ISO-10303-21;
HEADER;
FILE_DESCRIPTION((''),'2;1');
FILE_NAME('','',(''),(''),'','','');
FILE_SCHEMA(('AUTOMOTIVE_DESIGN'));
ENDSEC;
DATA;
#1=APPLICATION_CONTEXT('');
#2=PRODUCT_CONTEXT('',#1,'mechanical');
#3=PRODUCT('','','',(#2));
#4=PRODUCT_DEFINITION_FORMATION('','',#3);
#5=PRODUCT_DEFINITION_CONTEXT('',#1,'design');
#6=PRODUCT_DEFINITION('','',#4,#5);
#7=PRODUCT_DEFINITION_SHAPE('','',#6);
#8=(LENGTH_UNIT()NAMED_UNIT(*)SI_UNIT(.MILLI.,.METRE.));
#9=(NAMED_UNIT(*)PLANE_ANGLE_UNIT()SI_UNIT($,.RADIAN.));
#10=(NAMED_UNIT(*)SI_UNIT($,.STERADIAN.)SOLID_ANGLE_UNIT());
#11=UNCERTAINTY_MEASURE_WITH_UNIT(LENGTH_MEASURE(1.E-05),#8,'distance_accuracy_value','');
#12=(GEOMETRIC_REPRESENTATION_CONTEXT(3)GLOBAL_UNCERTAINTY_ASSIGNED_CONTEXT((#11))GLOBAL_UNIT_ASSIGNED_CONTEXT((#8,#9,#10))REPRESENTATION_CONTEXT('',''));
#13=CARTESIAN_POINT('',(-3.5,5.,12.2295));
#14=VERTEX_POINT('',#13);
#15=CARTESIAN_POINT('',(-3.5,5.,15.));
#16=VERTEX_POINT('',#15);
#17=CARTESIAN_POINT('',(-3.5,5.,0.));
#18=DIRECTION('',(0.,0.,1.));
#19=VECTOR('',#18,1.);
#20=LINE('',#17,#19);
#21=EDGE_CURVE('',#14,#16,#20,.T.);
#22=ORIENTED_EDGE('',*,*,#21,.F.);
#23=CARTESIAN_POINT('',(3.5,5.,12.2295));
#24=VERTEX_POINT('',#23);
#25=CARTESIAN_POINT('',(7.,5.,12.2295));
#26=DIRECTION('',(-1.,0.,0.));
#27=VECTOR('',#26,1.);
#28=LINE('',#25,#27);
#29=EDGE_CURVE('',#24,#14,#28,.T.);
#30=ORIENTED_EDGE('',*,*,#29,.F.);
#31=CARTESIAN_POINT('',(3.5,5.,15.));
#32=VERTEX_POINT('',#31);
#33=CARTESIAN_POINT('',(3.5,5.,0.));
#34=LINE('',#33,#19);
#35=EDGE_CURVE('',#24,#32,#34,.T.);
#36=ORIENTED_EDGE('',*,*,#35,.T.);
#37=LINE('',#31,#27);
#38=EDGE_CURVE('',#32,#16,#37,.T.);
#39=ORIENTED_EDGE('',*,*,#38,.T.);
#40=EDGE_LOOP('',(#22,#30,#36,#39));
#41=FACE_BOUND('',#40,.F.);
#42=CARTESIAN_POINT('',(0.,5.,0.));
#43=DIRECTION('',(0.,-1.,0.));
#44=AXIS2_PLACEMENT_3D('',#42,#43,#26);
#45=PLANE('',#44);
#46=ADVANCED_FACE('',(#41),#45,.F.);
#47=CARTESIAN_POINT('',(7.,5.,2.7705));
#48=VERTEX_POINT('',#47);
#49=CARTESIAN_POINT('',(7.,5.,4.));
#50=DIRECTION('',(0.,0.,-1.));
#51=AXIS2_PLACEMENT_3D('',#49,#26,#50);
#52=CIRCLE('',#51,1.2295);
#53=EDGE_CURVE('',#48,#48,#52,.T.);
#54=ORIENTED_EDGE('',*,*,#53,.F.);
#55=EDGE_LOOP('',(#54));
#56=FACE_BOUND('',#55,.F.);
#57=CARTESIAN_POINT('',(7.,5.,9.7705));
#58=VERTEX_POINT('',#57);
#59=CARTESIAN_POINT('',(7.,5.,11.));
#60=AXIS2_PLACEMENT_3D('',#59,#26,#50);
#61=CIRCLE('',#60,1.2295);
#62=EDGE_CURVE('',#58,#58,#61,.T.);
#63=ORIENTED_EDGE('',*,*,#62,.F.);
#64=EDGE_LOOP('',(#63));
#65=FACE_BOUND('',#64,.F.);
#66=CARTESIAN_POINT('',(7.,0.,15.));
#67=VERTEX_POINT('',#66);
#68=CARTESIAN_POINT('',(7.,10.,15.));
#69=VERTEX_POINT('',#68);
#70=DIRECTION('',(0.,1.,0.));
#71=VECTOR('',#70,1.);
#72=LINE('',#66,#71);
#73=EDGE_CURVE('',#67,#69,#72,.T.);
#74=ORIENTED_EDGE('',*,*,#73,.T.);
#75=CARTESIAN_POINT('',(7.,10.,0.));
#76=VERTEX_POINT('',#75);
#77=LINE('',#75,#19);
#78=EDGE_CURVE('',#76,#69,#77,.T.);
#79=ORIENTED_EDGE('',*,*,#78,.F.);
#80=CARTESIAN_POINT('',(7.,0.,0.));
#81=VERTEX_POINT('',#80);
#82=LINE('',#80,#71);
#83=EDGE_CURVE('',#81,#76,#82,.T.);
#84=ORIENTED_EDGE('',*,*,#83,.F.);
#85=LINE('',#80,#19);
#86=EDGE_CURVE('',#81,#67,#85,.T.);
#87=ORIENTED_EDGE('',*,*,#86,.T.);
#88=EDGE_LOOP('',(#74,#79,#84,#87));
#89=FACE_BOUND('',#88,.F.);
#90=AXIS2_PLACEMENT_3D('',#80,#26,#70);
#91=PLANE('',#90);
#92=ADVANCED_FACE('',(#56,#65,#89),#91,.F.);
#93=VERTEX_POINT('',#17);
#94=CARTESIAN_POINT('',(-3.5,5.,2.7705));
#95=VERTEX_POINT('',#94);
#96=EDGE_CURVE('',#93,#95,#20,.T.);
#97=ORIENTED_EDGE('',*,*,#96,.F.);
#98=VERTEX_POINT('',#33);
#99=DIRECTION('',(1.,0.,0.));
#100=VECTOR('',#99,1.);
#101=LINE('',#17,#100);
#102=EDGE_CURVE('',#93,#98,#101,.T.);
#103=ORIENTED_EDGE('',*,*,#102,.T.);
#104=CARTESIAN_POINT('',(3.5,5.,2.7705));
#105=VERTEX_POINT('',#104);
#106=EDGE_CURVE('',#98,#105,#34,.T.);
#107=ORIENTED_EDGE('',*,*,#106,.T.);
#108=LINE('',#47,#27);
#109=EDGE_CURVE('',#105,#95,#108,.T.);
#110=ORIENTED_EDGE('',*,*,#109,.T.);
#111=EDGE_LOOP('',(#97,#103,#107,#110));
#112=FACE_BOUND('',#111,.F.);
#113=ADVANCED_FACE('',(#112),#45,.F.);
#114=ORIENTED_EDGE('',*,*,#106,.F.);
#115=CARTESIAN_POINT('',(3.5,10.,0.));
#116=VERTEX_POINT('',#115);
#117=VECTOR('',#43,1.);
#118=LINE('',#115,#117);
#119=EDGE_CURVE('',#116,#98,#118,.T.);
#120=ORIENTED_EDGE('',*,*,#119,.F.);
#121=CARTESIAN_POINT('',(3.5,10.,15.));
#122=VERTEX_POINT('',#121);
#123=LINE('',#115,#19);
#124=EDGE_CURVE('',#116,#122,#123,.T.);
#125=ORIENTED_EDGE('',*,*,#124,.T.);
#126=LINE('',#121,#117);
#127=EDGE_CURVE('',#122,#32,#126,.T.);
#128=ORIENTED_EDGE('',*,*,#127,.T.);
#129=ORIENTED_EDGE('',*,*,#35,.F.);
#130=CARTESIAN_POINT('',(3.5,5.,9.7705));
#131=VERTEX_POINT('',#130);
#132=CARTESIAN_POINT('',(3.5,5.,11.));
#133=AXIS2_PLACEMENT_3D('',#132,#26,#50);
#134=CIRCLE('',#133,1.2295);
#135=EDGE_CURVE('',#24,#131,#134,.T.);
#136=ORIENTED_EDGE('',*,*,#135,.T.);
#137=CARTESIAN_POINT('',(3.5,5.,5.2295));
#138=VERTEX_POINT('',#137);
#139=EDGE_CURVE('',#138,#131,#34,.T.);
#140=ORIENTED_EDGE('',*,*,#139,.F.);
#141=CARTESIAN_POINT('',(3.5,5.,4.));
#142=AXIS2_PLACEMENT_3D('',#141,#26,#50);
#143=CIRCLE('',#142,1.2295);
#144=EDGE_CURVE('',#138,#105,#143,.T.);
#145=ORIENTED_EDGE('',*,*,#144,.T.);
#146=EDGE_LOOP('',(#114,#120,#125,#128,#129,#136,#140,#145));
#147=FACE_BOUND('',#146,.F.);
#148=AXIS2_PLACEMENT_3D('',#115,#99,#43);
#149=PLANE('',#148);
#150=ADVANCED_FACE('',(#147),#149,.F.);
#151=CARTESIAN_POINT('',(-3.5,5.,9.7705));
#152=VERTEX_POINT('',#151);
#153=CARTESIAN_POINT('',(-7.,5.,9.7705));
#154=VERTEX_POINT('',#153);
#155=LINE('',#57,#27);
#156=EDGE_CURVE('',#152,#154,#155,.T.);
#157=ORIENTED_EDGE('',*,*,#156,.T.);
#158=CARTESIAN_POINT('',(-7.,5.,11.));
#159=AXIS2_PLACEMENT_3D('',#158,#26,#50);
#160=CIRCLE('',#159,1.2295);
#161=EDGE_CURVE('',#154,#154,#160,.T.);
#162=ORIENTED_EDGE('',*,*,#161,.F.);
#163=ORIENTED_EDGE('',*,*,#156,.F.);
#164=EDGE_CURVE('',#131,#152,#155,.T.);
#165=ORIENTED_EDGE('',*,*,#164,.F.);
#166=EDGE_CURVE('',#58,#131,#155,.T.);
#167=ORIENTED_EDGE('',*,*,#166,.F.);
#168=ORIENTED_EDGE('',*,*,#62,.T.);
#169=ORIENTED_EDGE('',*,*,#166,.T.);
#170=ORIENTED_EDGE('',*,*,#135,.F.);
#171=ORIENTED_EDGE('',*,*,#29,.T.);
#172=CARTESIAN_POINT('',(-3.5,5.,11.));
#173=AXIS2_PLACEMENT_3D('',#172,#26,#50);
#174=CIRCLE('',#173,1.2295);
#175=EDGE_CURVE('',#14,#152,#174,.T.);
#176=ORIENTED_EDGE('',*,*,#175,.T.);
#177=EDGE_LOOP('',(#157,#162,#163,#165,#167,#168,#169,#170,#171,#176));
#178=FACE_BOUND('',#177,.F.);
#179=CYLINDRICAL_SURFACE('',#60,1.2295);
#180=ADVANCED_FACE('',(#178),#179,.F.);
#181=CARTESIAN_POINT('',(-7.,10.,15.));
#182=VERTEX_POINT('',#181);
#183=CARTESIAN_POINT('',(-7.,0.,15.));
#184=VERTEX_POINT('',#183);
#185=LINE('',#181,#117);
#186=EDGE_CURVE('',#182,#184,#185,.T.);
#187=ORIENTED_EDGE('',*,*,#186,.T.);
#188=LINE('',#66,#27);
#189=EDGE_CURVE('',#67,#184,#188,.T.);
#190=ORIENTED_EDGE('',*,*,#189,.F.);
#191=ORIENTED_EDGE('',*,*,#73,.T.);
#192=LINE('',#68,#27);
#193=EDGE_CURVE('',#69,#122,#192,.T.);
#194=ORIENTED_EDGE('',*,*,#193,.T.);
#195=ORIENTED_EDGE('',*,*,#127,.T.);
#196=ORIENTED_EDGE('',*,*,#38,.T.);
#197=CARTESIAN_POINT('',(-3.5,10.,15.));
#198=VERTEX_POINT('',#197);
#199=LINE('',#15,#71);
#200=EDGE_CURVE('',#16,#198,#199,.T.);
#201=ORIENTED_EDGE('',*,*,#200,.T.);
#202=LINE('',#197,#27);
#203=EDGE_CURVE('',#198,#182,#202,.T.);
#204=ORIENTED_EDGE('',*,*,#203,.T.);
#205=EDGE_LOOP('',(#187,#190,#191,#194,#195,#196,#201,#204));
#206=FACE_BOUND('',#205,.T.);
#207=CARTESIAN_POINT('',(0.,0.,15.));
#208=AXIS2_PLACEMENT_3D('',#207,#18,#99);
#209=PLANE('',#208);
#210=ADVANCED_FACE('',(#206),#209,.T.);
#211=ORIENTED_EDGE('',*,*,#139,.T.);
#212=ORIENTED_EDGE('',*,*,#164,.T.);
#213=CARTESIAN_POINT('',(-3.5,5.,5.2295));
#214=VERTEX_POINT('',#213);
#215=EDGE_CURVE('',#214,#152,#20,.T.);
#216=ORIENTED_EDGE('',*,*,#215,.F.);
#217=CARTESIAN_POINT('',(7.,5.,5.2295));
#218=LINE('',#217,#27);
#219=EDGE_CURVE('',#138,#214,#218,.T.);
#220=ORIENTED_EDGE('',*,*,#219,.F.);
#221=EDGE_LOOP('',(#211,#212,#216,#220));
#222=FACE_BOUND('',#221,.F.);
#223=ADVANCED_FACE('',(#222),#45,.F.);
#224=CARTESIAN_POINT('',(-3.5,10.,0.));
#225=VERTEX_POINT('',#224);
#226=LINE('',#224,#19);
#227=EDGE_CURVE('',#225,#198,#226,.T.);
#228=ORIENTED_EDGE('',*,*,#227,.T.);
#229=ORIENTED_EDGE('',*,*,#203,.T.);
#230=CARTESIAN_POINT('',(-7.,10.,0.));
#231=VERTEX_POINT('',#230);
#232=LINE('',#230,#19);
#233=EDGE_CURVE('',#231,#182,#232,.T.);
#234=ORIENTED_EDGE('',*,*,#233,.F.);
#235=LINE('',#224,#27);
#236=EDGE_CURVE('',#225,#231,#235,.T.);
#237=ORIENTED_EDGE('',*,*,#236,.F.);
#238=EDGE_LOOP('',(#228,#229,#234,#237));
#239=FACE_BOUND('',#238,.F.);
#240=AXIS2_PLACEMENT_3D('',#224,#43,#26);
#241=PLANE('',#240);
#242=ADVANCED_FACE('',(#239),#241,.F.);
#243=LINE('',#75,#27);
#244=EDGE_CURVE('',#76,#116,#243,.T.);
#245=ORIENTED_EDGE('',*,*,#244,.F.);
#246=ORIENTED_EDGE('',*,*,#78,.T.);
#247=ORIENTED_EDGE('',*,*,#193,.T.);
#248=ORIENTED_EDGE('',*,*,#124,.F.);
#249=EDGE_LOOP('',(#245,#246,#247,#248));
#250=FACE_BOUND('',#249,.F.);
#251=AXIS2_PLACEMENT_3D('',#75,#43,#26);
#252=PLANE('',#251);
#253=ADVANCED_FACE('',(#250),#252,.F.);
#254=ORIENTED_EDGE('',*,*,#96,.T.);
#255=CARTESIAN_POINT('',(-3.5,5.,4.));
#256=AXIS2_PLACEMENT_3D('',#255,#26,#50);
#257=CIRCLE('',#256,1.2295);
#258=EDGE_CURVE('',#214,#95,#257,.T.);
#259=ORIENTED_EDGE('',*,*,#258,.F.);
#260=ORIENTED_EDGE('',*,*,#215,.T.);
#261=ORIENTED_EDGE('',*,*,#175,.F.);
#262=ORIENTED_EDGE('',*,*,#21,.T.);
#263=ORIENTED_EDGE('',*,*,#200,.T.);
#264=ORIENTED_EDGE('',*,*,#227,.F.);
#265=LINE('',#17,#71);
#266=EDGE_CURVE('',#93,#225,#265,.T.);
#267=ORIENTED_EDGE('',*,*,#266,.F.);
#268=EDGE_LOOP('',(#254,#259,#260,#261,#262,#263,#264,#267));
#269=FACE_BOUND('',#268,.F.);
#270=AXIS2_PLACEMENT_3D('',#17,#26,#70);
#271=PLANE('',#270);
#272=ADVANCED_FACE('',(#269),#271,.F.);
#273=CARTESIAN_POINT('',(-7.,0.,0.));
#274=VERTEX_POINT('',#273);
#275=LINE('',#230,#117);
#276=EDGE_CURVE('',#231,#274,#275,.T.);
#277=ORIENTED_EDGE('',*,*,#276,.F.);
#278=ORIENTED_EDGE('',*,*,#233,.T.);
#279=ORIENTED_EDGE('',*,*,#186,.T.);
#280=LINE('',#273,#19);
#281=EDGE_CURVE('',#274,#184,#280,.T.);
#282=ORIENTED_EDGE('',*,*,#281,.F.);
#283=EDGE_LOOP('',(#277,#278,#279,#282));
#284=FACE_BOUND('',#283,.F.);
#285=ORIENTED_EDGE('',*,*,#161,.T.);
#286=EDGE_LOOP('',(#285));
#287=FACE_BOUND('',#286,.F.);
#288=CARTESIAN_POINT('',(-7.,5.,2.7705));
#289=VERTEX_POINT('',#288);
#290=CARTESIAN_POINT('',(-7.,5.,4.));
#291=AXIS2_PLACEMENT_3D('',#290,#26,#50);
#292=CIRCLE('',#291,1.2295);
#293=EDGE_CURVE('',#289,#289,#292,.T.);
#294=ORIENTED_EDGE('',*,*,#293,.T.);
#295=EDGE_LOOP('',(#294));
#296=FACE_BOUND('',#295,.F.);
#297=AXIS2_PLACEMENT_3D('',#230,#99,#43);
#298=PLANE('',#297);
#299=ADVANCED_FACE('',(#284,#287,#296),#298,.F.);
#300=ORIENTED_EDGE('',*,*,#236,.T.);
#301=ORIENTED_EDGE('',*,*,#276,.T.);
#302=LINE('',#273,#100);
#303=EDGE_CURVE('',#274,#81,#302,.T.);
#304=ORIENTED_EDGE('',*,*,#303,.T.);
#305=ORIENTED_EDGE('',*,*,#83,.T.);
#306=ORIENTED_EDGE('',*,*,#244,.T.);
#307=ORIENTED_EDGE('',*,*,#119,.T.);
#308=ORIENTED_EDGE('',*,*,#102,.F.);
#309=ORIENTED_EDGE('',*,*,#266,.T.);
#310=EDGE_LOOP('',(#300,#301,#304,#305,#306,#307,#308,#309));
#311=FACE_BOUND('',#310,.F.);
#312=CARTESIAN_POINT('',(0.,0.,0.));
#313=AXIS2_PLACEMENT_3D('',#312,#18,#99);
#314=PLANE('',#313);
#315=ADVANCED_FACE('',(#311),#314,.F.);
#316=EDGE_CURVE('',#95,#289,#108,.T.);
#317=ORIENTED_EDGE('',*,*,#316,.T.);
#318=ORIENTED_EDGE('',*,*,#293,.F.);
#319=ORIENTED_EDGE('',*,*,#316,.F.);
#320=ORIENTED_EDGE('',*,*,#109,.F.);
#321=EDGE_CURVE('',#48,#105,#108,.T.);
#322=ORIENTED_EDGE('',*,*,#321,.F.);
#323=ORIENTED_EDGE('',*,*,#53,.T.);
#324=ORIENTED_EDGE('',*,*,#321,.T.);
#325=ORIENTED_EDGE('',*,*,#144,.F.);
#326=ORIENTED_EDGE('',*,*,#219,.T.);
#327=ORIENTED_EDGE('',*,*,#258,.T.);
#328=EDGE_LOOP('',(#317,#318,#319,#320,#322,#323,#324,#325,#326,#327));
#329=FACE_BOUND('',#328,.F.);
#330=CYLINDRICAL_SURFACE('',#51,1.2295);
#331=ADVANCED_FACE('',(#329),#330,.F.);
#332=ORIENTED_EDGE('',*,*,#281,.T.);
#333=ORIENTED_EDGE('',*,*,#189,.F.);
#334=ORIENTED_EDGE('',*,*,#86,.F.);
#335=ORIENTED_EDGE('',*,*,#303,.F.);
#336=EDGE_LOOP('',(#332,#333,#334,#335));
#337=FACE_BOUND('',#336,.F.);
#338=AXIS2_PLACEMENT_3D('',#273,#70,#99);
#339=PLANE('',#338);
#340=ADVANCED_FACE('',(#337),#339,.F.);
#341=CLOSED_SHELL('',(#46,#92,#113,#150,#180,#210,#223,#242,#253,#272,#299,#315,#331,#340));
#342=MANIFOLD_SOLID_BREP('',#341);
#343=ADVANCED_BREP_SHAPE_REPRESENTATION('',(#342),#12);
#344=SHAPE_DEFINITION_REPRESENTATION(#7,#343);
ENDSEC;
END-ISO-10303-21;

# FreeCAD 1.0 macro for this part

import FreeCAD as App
import Part
import Sketcher
Q = App.Units.Quantity

doc = App.newDocument("Part")
body = doc.addObject("PartDesign::Body", "Body")

# Sketch on XY plane
sketch1 = body.newObject("Sketcher::SketchObject", "Sketch")
sketch1.AttachmentSupport = (doc.getObject("XY_Plane"), [""])
sketch1.MapMode = "FlatFace"
sketch1.addGeometry([
    Part.LineSegment(App.Vector(-7, 10, 0), App.Vector(-7, 0, 0)),  # 0
    Part.LineSegment(App.Vector(-7, 0, 0), App.Vector(7, 0, 0)),  # 1
    Part.LineSegment(App.Vector(7, 0, 0), App.Vector(7, 10, 0)),  # 2
    Part.LineSegment(App.Vector(7, 10, 0), App.Vector(3.5, 10, 0)),  # 3
    Part.LineSegment(App.Vector(3.5, 10, 0), App.Vector(3.5, 5, 0)),  # 4
    Part.LineSegment(App.Vector(3.5, 5, 0), App.Vector(-3.5, 5, 0)),  # 5
    Part.LineSegment(App.Vector(-3.5, 5, 0), App.Vector(-3.5, 10, 0)),  # 6
    Part.LineSegment(App.Vector(-3.5, 10, 0), App.Vector(-7, 10, 0)),  # 7
], False)
sketch1.addConstraint([
    Sketcher.Constraint("Coincident", 0, 2, 1, 1),
    Sketcher.Constraint("Coincident", 1, 2, 2, 1),
    Sketcher.Constraint("Coincident", 2, 2, 3, 1),
    Sketcher.Constraint("Coincident", 3, 2, 4, 1),
    Sketcher.Constraint("Coincident", 4, 2, 5, 1),
    Sketcher.Constraint("Coincident", 5, 2, 6, 1),
    Sketcher.Constraint("Coincident", 6, 2, 7, 1),
    Sketcher.Constraint("Coincident", 7, 2, 0, 1),
    Sketcher.Constraint("Vertical", 0),
    Sketcher.Constraint("Horizontal", 1),
    Sketcher.Constraint("Vertical", 2),
    Sketcher.Constraint("Horizontal", 3),
    Sketcher.Constraint("Vertical", 4),
    Sketcher.Constraint("Horizontal", 5),
    Sketcher.Constraint("Vertical", 6),
    Sketcher.Constraint("Horizontal", 7),
    Sketcher.Constraint("Symmetric", 0, 2, 1, 2, -1, 1),
    Sketcher.Constraint("Symmetric", 3, 2, 6, 2, -2),
    Sketcher.Constraint("DistanceX", 5, 2, 5, 1, Q("7 mm")),
    Sketcher.Constraint("DistanceY", 0, 2, 0, 1, Q("10 mm")),
    Sketcher.Constraint("DistanceY", 4, 2, 4, 1, Q("5 mm")),
    Sketcher.Constraint("DistanceX", 3, 2, 3, 1, Q("3.5 mm")),
])
pad1 = body.newObject("PartDesign::Pad", "Pad")
pad1.Profile = sketch1
pad1.Length = 15

# Sketch on YZ plane
sketch2 = body.newObject("Sketcher::SketchObject", "Sketch001")
sketch2.AttachmentSupport = (doc.getObject("YZ_Plane"), [""])
sketch2.MapMode = "FlatFace"
sketch2.AttachmentOffset = App.Placement(App.Vector(0, 0, 7), App.Rotation())
sketch2.addGeometry([
    Part.Circle(App.Vector(5, 11, 0), App.Vector(0, 0, 1), 1.2),
    Part.Circle(App.Vector(5, 4, 0), App.Vector(0, 0, 1), 1.2),
], False)
sketch2.addConstraint([
    Sketcher.Constraint("Equal", 0, 1),
    Sketcher.Constraint("Vertical", 0, 3, 1, 3),
    Sketcher.Constraint("Diameter", 0, Q("2.459 mm")),
    Sketcher.Constraint("DistanceX", -1, 1, 0, 3, Q("5 mm")),
    Sketcher.Constraint("DistanceY", -1, 1, 0, 3, Q("11 mm")),
    Sketcher.Constraint("DistanceY", -1, 1, 1, 3, Q("4 mm")),
])
doc.recompute()
hole = body.newObject("PartDesign::Hole", "Hole")
hole.Profile = sketch2
hole.ThreadType = "None"
hole.Diameter = 2.459
hole.DepthType = "ThroughAll"

doc.recompute()
